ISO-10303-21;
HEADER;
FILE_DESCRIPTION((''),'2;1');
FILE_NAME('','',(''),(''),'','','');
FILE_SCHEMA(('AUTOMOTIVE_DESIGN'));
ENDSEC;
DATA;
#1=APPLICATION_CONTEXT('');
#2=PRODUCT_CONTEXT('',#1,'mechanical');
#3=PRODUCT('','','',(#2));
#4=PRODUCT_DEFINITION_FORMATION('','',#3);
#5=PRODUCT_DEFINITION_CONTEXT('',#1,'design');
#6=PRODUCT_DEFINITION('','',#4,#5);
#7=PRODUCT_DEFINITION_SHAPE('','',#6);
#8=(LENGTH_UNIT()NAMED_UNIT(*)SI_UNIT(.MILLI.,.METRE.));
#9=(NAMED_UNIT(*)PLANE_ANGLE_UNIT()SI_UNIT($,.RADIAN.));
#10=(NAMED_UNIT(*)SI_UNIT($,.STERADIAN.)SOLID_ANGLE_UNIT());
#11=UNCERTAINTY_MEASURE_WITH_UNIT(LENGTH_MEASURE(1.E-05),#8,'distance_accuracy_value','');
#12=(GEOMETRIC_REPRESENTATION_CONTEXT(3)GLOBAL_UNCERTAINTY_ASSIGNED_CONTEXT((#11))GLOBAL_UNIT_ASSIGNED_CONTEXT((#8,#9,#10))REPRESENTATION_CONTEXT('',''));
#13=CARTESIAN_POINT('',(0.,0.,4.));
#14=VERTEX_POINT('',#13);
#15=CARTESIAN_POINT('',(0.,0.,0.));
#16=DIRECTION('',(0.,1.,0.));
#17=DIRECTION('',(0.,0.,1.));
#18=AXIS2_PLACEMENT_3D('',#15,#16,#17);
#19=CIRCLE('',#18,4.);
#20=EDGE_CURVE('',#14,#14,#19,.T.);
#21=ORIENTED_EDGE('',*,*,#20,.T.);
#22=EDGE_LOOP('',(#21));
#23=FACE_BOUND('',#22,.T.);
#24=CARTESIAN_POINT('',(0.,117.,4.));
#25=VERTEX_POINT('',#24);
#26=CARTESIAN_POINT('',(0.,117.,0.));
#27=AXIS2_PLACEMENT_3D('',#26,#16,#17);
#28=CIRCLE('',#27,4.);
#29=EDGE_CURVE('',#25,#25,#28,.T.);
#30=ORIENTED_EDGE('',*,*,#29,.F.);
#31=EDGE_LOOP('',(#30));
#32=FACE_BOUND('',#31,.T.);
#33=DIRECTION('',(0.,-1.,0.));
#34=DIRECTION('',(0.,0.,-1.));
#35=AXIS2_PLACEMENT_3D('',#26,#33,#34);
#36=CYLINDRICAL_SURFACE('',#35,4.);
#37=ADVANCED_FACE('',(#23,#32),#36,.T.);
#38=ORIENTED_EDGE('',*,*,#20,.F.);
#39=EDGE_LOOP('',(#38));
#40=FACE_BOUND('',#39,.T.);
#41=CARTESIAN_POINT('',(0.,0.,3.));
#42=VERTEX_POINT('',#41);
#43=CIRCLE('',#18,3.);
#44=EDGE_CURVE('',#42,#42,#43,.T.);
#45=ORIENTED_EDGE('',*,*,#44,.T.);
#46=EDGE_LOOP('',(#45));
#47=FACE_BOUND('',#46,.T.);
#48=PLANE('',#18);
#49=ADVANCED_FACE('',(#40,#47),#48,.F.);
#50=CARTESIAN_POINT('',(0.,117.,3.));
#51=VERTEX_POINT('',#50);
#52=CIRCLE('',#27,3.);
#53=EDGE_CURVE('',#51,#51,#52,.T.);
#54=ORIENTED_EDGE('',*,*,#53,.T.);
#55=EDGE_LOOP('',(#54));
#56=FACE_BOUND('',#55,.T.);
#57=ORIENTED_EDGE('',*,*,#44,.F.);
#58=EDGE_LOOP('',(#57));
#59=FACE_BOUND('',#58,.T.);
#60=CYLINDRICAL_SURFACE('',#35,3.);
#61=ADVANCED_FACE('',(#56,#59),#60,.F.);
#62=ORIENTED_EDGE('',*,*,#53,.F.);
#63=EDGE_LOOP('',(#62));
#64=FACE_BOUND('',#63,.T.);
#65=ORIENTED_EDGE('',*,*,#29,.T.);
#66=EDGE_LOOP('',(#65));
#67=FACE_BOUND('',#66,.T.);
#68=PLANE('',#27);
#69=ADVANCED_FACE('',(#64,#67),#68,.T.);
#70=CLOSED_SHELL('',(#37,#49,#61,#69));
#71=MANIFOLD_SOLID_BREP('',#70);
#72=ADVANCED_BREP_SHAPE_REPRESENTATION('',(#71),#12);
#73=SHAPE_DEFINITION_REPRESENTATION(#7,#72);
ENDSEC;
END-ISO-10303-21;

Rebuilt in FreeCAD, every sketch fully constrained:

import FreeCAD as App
import Part
import Sketcher

V = App.Vector
Q = App.Units.Quantity

doc = App.newDocument("Part")
body = doc.addObject("PartDesign::Body", "Body")

# Sketch on XZ plane
sketch1 = doc.addObject("Sketcher::SketchObject", "Sketch")
body.addObject(sketch1)
sketch1.AttachmentSupport = (doc.XZ_Plane, [""])
sketch1.MapMode = "FlatFace"
sketch1.addGeometry(Part.Circle(V(0, 0, 0), V(0, 0, 1), 4), False)
sketch1.addGeometry(Part.Circle(V(0, 0, 0), V(0, 0, 1), 3), False)
sketch1.addConstraint(Sketcher.Constraint("Coincident", 0, 3, -1, 1))
sketch1.addConstraint(Sketcher.Constraint("Coincident", 1, 3, -1, 1))
sketch1.addConstraint(Sketcher.Constraint("Diameter", 0, Q("8 mm")))
sketch1.addConstraint(Sketcher.Constraint("Diameter", 1, Q("6 mm")))
pad1 = doc.addObject("PartDesign::Pad", "Pad")
body.addObject(pad1)
pad1.Profile = sketch1
pad1.Length = 117
pad1.Reversed = True

doc.recompute()
